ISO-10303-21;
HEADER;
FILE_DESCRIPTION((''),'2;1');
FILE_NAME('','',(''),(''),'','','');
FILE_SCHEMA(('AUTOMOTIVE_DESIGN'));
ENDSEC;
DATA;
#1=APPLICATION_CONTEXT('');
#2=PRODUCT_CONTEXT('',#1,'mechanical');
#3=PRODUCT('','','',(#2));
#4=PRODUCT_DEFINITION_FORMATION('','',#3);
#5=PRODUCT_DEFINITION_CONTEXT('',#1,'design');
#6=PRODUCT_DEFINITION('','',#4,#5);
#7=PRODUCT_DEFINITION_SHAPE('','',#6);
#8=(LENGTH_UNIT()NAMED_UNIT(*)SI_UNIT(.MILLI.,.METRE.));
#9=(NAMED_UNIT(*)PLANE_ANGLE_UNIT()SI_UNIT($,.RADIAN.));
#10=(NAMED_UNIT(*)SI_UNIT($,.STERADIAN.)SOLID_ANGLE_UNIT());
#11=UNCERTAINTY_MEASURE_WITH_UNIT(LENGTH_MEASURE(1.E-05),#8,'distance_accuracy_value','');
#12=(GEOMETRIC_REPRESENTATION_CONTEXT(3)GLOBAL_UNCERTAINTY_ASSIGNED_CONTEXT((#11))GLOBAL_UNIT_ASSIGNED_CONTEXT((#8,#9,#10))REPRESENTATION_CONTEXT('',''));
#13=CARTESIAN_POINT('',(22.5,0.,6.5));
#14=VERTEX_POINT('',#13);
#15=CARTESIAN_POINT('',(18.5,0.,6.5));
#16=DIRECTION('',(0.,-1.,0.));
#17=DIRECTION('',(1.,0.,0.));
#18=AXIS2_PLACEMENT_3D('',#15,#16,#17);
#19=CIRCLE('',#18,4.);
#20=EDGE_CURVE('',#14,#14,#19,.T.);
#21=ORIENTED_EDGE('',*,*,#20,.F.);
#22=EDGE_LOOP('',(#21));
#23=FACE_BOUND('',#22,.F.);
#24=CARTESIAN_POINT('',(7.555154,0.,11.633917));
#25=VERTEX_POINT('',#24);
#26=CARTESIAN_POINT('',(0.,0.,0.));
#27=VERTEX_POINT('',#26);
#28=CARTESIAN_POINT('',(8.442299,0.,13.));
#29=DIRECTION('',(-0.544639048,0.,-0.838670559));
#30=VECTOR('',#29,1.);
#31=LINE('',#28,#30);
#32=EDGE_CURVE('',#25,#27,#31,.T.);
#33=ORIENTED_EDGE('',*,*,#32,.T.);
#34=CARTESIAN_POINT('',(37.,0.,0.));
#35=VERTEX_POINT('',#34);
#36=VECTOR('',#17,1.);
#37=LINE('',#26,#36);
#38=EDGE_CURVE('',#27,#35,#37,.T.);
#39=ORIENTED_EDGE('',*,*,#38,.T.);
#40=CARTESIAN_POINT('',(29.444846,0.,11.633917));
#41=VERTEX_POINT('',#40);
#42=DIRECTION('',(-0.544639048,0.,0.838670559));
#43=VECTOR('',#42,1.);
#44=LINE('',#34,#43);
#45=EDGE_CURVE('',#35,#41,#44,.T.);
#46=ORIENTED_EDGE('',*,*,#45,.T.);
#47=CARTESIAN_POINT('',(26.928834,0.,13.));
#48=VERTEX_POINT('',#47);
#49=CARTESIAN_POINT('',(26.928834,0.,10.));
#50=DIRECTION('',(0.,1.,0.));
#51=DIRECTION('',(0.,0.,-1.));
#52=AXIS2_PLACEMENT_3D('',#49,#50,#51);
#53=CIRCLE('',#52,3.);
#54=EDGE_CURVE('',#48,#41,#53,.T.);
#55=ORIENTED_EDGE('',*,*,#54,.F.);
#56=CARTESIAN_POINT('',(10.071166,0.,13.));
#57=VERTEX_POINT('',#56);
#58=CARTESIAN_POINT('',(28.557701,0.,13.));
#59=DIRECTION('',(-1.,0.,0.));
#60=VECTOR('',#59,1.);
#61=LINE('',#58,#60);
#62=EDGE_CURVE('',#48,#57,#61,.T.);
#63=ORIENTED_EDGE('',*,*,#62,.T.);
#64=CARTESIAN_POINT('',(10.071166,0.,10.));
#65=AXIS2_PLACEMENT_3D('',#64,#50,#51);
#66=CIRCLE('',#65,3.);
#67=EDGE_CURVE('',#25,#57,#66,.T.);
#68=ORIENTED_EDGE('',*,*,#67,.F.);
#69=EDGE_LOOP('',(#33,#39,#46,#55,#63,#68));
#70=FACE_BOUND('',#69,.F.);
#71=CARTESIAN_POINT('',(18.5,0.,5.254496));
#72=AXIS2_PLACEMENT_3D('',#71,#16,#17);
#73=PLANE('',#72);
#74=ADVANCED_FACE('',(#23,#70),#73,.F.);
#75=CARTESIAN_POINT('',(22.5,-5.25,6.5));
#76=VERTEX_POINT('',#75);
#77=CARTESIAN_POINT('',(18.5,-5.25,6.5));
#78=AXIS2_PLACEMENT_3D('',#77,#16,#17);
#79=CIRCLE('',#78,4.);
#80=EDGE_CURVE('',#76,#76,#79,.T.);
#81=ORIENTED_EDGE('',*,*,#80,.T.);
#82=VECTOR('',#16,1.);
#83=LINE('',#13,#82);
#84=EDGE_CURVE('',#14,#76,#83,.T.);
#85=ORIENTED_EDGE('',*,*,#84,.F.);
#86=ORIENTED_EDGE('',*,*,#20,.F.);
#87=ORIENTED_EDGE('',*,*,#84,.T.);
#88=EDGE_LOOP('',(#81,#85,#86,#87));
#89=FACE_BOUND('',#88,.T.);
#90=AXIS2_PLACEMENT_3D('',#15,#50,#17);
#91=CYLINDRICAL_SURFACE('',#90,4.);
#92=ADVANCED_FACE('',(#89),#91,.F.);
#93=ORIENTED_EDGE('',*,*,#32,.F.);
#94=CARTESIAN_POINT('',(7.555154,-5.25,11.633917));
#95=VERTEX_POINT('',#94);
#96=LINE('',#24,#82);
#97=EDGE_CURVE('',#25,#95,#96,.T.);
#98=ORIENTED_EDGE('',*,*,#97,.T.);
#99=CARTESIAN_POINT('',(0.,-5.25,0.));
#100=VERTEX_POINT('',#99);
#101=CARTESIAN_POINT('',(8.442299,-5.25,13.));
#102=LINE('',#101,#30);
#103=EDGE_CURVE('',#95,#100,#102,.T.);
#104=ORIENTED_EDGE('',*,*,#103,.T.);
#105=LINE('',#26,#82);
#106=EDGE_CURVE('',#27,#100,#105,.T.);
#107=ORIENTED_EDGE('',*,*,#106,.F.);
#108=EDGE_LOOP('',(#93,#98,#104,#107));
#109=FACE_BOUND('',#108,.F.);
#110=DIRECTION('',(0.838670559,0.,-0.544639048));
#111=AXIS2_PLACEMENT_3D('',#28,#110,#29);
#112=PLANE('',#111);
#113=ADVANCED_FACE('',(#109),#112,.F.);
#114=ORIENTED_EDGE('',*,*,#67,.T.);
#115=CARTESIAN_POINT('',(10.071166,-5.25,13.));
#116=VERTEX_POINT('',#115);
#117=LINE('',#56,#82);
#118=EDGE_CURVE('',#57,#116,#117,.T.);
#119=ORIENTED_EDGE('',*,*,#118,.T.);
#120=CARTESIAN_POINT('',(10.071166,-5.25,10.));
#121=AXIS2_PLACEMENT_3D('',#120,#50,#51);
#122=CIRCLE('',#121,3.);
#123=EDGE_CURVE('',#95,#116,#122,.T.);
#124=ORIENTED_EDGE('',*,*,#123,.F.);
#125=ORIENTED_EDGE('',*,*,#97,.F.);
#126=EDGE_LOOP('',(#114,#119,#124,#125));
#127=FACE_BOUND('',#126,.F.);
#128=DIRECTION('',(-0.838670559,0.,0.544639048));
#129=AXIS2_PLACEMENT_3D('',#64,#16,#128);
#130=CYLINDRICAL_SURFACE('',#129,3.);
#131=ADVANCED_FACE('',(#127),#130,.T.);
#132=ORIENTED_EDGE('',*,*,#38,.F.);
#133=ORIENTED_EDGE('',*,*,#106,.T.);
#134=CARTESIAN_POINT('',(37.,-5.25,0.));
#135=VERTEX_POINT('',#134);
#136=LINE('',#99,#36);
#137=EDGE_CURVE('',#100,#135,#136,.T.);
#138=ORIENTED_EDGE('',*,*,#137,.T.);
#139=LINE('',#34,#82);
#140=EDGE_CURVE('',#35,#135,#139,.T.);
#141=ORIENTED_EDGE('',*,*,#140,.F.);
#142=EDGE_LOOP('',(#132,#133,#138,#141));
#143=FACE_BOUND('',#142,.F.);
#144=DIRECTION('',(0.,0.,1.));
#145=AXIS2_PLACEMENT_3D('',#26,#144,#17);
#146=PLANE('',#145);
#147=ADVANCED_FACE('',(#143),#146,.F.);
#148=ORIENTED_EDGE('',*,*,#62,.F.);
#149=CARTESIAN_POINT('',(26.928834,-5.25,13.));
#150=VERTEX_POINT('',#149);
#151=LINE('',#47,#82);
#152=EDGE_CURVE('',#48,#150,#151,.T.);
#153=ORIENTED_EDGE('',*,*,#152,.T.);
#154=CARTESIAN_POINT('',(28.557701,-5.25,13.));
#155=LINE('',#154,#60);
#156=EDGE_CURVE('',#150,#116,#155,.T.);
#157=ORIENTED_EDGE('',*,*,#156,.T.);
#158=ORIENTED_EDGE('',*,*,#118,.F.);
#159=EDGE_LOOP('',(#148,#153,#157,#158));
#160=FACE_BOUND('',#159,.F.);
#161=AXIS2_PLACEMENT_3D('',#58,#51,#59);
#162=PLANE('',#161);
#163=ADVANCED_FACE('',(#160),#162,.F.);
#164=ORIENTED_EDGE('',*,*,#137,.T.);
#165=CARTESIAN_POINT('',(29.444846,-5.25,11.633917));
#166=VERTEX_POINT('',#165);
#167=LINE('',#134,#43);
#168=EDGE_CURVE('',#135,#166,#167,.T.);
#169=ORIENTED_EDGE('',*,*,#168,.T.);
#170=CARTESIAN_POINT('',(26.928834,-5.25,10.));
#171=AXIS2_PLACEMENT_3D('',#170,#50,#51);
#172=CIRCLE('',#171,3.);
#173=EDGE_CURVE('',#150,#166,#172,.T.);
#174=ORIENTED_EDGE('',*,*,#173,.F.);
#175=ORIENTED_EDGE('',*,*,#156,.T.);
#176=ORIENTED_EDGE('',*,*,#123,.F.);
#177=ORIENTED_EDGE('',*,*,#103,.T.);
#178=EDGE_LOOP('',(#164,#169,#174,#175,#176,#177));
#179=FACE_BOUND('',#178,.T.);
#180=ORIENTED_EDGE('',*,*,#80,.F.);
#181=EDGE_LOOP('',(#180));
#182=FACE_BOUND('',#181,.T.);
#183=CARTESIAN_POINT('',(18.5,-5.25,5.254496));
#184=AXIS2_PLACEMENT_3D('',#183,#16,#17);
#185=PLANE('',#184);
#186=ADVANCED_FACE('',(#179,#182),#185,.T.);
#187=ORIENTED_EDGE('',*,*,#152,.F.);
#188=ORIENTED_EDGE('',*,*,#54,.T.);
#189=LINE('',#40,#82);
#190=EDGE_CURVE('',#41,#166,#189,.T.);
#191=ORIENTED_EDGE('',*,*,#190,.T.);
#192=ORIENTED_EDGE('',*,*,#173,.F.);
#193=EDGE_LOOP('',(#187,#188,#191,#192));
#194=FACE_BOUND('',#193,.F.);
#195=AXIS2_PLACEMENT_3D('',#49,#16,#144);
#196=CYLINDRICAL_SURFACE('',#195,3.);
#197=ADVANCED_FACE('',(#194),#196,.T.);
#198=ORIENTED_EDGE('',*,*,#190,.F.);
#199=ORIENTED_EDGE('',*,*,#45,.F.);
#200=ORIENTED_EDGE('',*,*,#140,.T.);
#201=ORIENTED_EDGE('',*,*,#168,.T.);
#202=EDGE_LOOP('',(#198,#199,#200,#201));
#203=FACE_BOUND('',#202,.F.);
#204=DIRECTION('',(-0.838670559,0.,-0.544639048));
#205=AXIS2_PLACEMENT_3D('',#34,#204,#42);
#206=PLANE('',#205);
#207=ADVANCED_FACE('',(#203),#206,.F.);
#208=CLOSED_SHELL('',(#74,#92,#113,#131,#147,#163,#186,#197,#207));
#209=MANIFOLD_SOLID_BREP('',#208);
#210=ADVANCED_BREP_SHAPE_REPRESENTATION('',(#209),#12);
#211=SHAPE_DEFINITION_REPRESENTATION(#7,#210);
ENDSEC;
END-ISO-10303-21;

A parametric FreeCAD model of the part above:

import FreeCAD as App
import Part
import Sketcher

V = App.Vector
Q = App.Units.Quantity


def edges_at(feature, points):
    """Names of the edges that pass closest to the given points."""
    edges = feature.Shape.Edges
    near = lambda p: min(range(len(edges)), key=lambda i: edges[i].distToShape(Part.Vertex(*p))[0])
    return sorted({f"Edge{near(p) + 1}" for p in points})


def add_polygon(sketch, points):
    """Adds a closed chain of lines whose ends are joined by coincident constraints."""
    first, n = sketch.GeometryCount, len(points)
    for a, b in zip(points, points[1:] + points[:1]):
        sketch.addGeometry(Part.LineSegment(App.Vector(*a, 0), App.Vector(*b, 0)), False)
    for i in range(n):
        sketch.addConstraint(Sketcher.Constraint("Coincident", first + i, 2, first + (i + 1) % n, 1))

doc = App.newDocument("Part")
params = doc.addObject("Spreadsheet::Sheet", "Params")
for row, (alias, value) in enumerate([
    ("sketch1_diameter", "8 mm"),
    ("sketch1_width", "37 mm"),
    ("pad1_length", "5.25 mm"),
    ("fillet_radius", "3 mm"),
], start=1):
    params.set(f"A{row}", alias)
    params.set(f"B{row}", "=" + value)
    params.setAlias(f"B{row}", alias)

body = doc.addObject("PartDesign::Body", "Body")

sketch1 = doc.addObject("Sketcher::SketchObject", "Sketch")
body.addObject(sketch1)
sketch1.AttachmentSupport = (doc.XZ_Plane, [""])
sketch1.MapMode = "FlatFace"
add_polygon(sketch1, [(8.4, 13), (0, 0), (37, 0), (28.6, 13)])
sketch1.addGeometry(Part.Circle(V(18.5, 6.5, 0), V(0, 0, 1), 4), False)
sketch1.addConstraint([
    Sketcher.Constraint("Horizontal", 1),
    Sketcher.Constraint("Horizontal", 3),
    Sketcher.Constraint("Coincident", 0, 2, -1, 1),
    Sketcher.Constraint("Equal", 0, 2),
    Sketcher.Constraint("Diameter", 4, 8.0),
    Sketcher.Constraint("DistanceX", 1, 1, 1, 2, 37.0),
    Sketcher.Constraint("Angle", 0, Q("-123.000001 deg")),
    Sketcher.Constraint("DistanceY", -1, 1, 2, 2, 13.0),
    Sketcher.Constraint("DistanceX", -1, 1, 4, 3, 18.5),
    Sketcher.Constraint("DistanceY", -1, 1, 4, 3, 6.5),
])
sketch1.setExpression("Constraints[8]", "Params.sketch1_diameter")
sketch1.setExpression("Constraints[9]", "Params.sketch1_width")
pad1 = doc.addObject("PartDesign::Pad", "Pad")
body.addObject(pad1)
pad1.Profile = sketch1
pad1.setExpression("Length", "Params.pad1_length")
doc.recompute()

fillet = doc.addObject("PartDesign::Fillet", "Fillet")
body.addObject(fillet)
fillet.Base = (pad1, edges_at(pad1, [(8.442, -2.625, 13), (28.558, -2.625, 13)]))
fillet.setExpression("Radius", "Params.fillet_radius")

doc.recompute()
